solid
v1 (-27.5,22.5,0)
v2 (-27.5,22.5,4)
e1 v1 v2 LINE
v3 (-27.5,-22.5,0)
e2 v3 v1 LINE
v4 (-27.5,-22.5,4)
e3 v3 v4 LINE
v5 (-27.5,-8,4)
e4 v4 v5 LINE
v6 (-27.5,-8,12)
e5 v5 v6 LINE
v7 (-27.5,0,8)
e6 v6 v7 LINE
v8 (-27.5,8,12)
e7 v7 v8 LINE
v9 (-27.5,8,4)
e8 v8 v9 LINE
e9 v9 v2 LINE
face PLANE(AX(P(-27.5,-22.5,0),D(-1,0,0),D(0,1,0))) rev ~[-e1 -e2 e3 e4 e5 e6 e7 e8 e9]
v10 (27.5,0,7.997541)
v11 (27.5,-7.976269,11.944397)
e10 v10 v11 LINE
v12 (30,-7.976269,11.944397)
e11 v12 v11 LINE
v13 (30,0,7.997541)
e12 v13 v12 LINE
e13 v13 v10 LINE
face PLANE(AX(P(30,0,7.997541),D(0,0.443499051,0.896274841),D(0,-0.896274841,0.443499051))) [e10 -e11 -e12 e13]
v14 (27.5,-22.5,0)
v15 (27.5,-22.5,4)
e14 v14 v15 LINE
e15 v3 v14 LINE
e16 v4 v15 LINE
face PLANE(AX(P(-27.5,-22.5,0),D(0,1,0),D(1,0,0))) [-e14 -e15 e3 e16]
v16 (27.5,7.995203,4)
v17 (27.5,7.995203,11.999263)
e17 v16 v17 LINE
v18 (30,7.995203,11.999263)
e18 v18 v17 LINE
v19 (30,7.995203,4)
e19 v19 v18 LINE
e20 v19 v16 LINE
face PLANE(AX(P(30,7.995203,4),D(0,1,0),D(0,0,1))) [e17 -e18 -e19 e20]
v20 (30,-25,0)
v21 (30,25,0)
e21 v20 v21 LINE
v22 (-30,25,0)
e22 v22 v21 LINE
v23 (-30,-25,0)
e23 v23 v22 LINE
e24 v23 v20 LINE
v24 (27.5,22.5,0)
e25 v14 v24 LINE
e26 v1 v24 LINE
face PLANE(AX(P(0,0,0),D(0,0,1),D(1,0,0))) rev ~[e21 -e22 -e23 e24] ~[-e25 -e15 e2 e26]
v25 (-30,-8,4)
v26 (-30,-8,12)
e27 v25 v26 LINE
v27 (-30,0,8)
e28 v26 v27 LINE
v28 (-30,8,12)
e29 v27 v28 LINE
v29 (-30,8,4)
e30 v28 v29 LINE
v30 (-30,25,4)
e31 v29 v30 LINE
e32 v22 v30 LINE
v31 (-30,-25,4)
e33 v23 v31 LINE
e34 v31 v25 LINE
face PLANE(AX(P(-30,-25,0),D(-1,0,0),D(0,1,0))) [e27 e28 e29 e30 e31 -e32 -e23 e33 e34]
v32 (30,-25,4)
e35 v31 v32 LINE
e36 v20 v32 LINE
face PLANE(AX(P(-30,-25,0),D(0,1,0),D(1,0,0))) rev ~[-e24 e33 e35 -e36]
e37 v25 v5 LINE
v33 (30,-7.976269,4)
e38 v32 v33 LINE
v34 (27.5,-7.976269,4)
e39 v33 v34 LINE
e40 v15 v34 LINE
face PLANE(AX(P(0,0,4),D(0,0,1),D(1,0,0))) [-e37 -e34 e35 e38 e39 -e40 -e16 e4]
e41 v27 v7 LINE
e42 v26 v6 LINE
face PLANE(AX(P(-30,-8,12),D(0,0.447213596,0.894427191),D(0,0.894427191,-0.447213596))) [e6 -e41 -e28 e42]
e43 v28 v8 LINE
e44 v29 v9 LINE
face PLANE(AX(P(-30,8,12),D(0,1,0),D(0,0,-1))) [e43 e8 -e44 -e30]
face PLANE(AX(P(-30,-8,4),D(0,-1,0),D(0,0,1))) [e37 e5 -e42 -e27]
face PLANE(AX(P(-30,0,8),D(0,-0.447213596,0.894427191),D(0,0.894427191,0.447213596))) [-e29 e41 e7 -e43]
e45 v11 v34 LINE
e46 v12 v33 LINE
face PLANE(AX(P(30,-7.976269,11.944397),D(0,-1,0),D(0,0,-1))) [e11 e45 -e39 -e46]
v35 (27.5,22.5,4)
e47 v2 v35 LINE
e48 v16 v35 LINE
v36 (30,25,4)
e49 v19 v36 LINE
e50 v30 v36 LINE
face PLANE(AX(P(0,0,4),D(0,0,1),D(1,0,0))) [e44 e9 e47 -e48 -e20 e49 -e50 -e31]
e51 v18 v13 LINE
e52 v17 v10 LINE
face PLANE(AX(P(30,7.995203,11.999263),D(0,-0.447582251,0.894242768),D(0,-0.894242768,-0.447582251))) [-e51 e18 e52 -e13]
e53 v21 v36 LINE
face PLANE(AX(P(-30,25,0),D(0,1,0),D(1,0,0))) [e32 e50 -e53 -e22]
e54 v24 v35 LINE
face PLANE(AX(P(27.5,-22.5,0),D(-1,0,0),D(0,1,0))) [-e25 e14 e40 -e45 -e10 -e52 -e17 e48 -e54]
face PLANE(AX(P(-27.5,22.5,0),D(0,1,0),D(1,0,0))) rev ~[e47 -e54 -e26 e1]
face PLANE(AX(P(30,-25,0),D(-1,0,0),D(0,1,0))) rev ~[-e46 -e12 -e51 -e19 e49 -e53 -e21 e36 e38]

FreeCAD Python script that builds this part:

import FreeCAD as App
import Part
import Sketcher

V = App.Vector
Q = App.Units.Quantity

doc = App.newDocument("Part")
body = doc.addObject("PartDesign::Body", "Body")

sketch1 = body.newObject("Sketcher::SketchObject", "Sketch")
sketch1.AttachmentSupport = (doc.getObject("XY_Plane"), [""])
sketch1.MapMode = "FlatFace"
sketch1.addGeometry([
    Part.LineSegment(V(-30, 25, 0), V(-30, -25, 0)),
    Part.LineSegment(V(-30, -25, 0), V(30, -25, 0)),
    Part.LineSegment(V(30, -25, 0), V(30, 25, 0)),
    Part.LineSegment(V(30, 25, 0), V(-30, 25, 0)),
    Part.LineSegment(V(28, -22, 0), V(-28, -22, 0)),
    Part.LineSegment(V(-28, -22, 0), V(-28, 22, 0)),
    Part.LineSegment(V(-28, 22, 0), V(28, 22, 0)),
    Part.LineSegment(V(28, 22, 0), V(28, -22, 0)),
], False)
sketch1.addConstraint([
    Sketcher.Constraint("Coincident", 0, 2, 1, 1),
    Sketcher.Constraint("Coincident", 1, 2, 2, 1),
    Sketcher.Constraint("Coincident", 2, 2, 3, 1),
    Sketcher.Constraint("Coincident", 3, 2, 0, 1),
    Sketcher.Constraint("Coincident", 4, 2, 5, 1),
    Sketcher.Constraint("Coincident", 5, 2, 6, 1),
    Sketcher.Constraint("Coincident", 6, 2, 7, 1),
    Sketcher.Constraint("Coincident", 7, 2, 4, 1),
    Sketcher.Constraint("Vertical", 0),
    Sketcher.Constraint("Horizontal", 1),
    Sketcher.Constraint("Vertical", 2),
    Sketcher.Constraint("Horizontal", 3),
    Sketcher.Constraint("Horizontal", 4),
    Sketcher.Constraint("Vertical", 5),
    Sketcher.Constraint("Horizontal", 6),
    Sketcher.Constraint("Vertical", 7),
    Sketcher.Constraint("Symmetric", 0, 2, 2, 2, -1, 1),
    Sketcher.Constraint("Symmetric", 4, 2, 6, 2, -1, 1),
    Sketcher.Constraint("DistanceX", 1, 1, 1, 2, Q("60 mm")),
    Sketcher.Constraint("DistanceX", 4, 2, 4, 1, Q("55 mm")),
    Sketcher.Constraint("DistanceY", 0, 2, 0, 1, Q("50 mm")),
    Sketcher.Constraint("DistanceY", 5, 1, 5, 2, Q("45 mm")),
])
pad1 = body.newObject("PartDesign::Pad", "Pad")
pad1.Profile = sketch1
pad1.Length = 4

sketch2 = body.newObject("Sketcher::SketchObject", "Sketch001")
sketch2.AttachmentSupport = (doc.getObject("YZ_Plane"), [""])
sketch2.MapMode = "FlatFace"
sketch2.AttachmentOffset = App.Placement(V(0, 0, -30), App.Rotation())
sketch2.addGeometry([
    Part.LineSegment(V(8, 12, 0), V(8, 4, 0)),
    Part.LineSegment(V(8, 4, 0), V(-8, 4, 0)),
    Part.LineSegment(V(-8, 4, 0), V(-8, 12, 0)),
    Part.LineSegment(V(-8, 12, 0), V(0, 8, 0)),
    Part.LineSegment(V(0, 8, 0), V(8, 12, 0)),
], False)
sketch2.addConstraint([
    Sketcher.Constraint("Coincident", 0, 2, 1, 1),
    Sketcher.Constraint("Coincident", 1, 2, 2, 1),
    Sketcher.Constraint("Coincident", 2, 2, 3, 1),
    Sketcher.Constraint("Coincident", 3, 2, 4, 1),
    Sketcher.Constraint("Coincident", 4, 2, 0, 1),
    Sketcher.Constraint("Vertical", 0),
    Sketcher.Constraint("Horizontal", 1),
    Sketcher.Constraint("Vertical", 2),
    Sketcher.Constraint("Symmetric", 2, 2, 4, 2, -2),
    Sketcher.Constraint("PointOnObject", 3, 2, -2),
    Sketcher.Constraint("DistanceX", 1, 2, 1, 1, Q("16 mm")),
    Sketcher.Constraint("DistanceY", 0, 2, 0, 1, Q("8 mm")),
    Sketcher.Constraint("DistanceY", -1, 1, 0, 2, Q("4 mm")),
    Sketcher.Constraint("DistanceY", -1, 1, 3, 2, Q("8 mm")),
])
pad2 = body.newObject("PartDesign::Pad", "Pad001")
pad2.Profile = sketch2
pad2.Length = 2.5

sketch3 = body.newObject("Sketcher::SketchObject", "Sketch002")
sketch3.AttachmentSupport = (doc.getObject("YZ_Plane"), [""])
sketch3.MapMode = "FlatFace"
sketch3.AttachmentOffset = App.Placement(V(0, 0, 30), App.Rotation())
sketch3.addGeometry([
    Part.LineSegment(V(-8, 12, 0), V(-8, 4, 0)),
    Part.LineSegment(V(-8, 4, 0), V(8, 4, 0)),
    Part.LineSegment(V(8, 4, 0), V(8, 12, 0)),
    Part.LineSegment(V(8, 12, 0), V(0, 8, 0)),
    Part.LineSegment(V(0, 8, 0), V(-8, 12, 0)),
], False)
sketch3.addConstraint([
    Sketcher.Constraint("Coincident", 0, 2, 1, 1),
    Sketcher.Constraint("Coincident", 1, 2, 2, 1),
    Sketcher.Constraint("Coincident", 2, 2, 3, 1),
    Sketcher.Constraint("Coincident", 3, 2, 4, 1),
    Sketcher.Constraint("Coincident", 4, 2, 0, 1),
    Sketcher.Constraint("Vertical", 0),
    Sketcher.Constraint("Horizontal", 1),
    Sketcher.Constraint("Vertical", 2),
    Sketcher.Constraint("PointOnObject", 3, 2, -2),
    Sketcher.Constraint("DistanceY", -1, 1, 0, 2, Q("4 mm")),
    Sketcher.Constraint("DistanceX", 1, 1, 1, 2, Q("15.971472 mm")),
    Sketcher.Constraint("DistanceY", 0, 2, 0, 1, Q("7.944397 mm")),
    Sketcher.Constraint("DistanceY", 2, 1, 2, 2, Q("7.999263 mm")),
    Sketcher.Constraint("DistanceX", 0, 2, -1, 1, Q("7.976269 mm")),
    Sketcher.Constraint("DistanceY", -1, 1, 3, 2, Q("7.997541 mm")),
])
pad3 = body.newObject("PartDesign::Pad", "Pad002")
pad3.Profile = sketch3
pad3.Length = 2.5
pad3.Reversed = True

doc.recompute()
